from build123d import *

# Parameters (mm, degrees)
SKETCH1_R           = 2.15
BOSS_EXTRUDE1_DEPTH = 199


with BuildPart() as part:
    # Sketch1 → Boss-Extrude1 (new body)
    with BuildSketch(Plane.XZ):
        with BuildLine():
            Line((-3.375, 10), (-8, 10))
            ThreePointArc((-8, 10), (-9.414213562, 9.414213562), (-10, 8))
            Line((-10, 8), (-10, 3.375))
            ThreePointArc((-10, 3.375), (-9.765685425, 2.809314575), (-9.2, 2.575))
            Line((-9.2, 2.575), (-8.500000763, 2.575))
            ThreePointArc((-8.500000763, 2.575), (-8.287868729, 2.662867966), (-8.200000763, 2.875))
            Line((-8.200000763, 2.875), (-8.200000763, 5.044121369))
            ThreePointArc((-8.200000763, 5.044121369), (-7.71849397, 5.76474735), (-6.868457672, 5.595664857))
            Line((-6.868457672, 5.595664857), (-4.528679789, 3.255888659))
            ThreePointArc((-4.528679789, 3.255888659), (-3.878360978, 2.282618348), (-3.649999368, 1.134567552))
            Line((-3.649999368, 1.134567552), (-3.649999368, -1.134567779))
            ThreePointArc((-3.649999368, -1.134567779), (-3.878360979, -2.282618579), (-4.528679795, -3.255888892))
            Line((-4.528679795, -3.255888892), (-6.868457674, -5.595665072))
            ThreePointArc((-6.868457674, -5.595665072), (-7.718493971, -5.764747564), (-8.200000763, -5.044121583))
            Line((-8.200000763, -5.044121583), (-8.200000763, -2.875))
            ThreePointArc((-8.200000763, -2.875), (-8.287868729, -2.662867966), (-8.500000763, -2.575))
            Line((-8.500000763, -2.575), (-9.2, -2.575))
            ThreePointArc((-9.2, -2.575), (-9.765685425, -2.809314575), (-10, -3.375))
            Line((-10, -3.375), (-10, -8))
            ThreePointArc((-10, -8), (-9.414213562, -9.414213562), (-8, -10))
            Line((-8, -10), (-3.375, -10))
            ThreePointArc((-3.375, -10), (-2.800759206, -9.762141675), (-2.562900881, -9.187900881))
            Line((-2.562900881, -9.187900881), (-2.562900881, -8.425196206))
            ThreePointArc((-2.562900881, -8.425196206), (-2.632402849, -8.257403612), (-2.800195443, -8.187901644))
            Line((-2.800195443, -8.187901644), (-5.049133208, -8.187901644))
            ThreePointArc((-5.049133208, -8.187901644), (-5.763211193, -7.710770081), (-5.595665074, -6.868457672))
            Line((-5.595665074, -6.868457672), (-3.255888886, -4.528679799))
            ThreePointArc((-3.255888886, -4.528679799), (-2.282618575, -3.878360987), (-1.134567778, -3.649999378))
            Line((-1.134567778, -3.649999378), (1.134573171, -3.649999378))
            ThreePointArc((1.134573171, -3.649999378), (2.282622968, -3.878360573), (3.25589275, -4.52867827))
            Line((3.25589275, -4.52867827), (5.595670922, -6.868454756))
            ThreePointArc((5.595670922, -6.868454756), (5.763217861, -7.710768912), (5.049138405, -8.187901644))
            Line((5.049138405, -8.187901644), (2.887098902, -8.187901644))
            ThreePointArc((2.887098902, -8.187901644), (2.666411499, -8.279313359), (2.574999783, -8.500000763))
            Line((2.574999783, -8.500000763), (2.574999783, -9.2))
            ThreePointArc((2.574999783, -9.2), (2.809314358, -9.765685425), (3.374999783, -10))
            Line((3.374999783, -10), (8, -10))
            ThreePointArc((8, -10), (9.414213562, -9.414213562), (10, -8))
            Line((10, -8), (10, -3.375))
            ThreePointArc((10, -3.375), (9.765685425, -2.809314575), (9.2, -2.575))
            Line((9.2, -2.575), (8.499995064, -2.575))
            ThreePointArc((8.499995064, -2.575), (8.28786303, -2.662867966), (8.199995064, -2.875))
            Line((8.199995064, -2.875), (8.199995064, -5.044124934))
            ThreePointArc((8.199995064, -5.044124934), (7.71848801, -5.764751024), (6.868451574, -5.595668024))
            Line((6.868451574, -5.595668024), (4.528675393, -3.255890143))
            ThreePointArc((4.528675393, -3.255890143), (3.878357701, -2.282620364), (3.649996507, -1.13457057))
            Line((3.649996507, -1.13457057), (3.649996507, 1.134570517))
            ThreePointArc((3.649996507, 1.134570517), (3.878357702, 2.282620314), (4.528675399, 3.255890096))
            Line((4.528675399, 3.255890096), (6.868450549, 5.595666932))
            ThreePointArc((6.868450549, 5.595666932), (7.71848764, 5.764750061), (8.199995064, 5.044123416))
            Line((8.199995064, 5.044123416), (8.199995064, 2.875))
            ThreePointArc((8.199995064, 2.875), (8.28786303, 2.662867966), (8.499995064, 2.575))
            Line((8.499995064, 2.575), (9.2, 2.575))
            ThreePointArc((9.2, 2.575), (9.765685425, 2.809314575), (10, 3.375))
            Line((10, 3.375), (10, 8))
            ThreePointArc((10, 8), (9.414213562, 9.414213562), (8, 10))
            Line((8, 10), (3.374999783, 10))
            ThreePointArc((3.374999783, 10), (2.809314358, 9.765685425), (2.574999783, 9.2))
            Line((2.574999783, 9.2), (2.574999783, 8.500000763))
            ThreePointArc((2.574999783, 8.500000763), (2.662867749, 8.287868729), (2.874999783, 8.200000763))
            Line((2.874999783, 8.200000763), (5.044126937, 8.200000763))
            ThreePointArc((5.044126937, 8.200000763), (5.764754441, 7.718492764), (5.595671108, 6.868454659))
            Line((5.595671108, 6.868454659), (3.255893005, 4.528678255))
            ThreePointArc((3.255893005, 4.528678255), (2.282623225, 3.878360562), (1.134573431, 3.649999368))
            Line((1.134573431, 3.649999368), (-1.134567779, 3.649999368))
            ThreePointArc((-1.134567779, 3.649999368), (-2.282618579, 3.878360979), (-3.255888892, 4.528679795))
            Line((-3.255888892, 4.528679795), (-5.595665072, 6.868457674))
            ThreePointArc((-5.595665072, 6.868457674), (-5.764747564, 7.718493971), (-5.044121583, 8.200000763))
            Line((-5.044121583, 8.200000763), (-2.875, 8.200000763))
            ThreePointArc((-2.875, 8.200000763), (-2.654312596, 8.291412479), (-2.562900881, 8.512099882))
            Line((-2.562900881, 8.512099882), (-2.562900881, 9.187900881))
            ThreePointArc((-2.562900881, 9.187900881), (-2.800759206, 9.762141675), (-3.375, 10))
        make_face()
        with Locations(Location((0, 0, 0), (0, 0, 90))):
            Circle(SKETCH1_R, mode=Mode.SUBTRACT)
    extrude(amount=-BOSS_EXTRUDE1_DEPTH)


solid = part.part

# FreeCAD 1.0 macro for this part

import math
import FreeCAD as App
import Part
import Sketcher

doc = App.newDocument("Part")
body = doc.addObject("PartDesign::Body", "Body")

# Sketch on XZ plane
sketch1 = doc.addObject("Sketcher::SketchObject", "Sketch")
body.addObject(sketch1)
sketch1.AttachmentSupport = (doc.XZ_Plane, [""])
sketch1.MapMode = "FlatFace"
sketch1.addGeometry([
    Part.LineSegment(App.Vector(-3.38, 10, 0), App.Vector(-8, 10, 0)),  # 0
    Part.ArcOfCircle(Part.Circle(App.Vector(-8, 8, 0), App.Vector(0, 0, 1), 2), math.radians(90), math.radians(180)),  # 1
    Part.LineSegment(App.Vector(-10, 8, 0), App.Vector(-10, 3.38, 0)),  # 2
    Part.ArcOfCircle(Part.Circle(App.Vector(-9.2, 3.38, 0), App.Vector(0, 0, 1), 0.8), math.radians(180), math.radians(270)),  # 3
    Part.LineSegment(App.Vector(-9.2, 2.58, 0), App.Vector(-8.5, 2.58, 0)),  # 4
    Part.ArcOfCircle(Part.Circle(App.Vector(-8.5, 2.88, 0), App.Vector(0, 0, 1), 0.3), math.radians(-90), math.radians(0)),  # 5
    Part.LineSegment(App.Vector(-8.2, 2.88, 0), App.Vector(-8.2, 5.04, 0)),  # 6
    Part.ArcOfCircle(Part.Circle(App.Vector(-7.42, 5.04, 0), App.Vector(0, 0, 1), 0.78), math.radians(45), math.radians(180)),  # 7
    Part.LineSegment(App.Vector(-6.87, 5.6, 0), App.Vector(-4.53, 3.26, 0)),  # 8
    Part.ArcOfCircle(Part.Circle(App.Vector(-6.65, 1.13, 0), App.Vector(0, 0, 1), 3), math.radians(0), math.radians(45)),  # 9
    Part.LineSegment(App.Vector(-3.65, 1.13, 0), App.Vector(-3.65, -1.13, 0)),  # 10
    Part.ArcOfCircle(Part.Circle(App.Vector(-6.65, -1.13, 0), App.Vector(0, 0, 1), 3), math.radians(-45), math.radians(0)),  # 11
    Part.LineSegment(App.Vector(-4.53, -3.26, 0), App.Vector(-6.87, -5.6, 0)),  # 12
    Part.ArcOfCircle(Part.Circle(App.Vector(-7.42, -5.04, 0), App.Vector(0, 0, 1), 0.78), math.radians(180), math.radians(315)),  # 13
    Part.LineSegment(App.Vector(-8.2, -5.04, 0), App.Vector(-8.2, -2.88, 0)),  # 14
    Part.ArcOfCircle(Part.Circle(App.Vector(-8.5, -2.88, 0), App.Vector(0, 0, 1), 0.3), math.radians(0), math.radians(90)),  # 15
    Part.LineSegment(App.Vector(-8.5, -2.58, 0), App.Vector(-9.2, -2.58, 0)),  # 16
    Part.ArcOfCircle(Part.Circle(App.Vector(-9.2, -3.38, 0), App.Vector(0, 0, 1), 0.8), math.radians(90), math.radians(180)),  # 17
    Part.LineSegment(App.Vector(-10, -3.38, 0), App.Vector(-10, -8, 0)),  # 18
    Part.ArcOfCircle(Part.Circle(App.Vector(-8, -8, 0), App.Vector(0, 0, 1), 2), math.radians(-180), math.radians(-90)),  # 19
    Part.LineSegment(App.Vector(-8, -10, 0), App.Vector(-3.38, -10, 0)),  # 20
    Part.ArcOfCircle(Part.Circle(App.Vector(-3.38, -9.19, 0), App.Vector(0, 0, 1), 0.81), math.radians(-90), math.radians(0)),  # 21
    Part.LineSegment(App.Vector(-2.56, -9.19, 0), App.Vector(-2.56, -8.43, 0)),  # 22
    Part.ArcOfCircle(Part.Circle(App.Vector(-2.8, -8.43, 0), App.Vector(0, 0, 1), 0.24), math.radians(0), math.radians(90)),  # 23
    Part.LineSegment(App.Vector(-2.8, -8.19, 0), App.Vector(-5.05, -8.19, 0)),  # 24
    Part.ArcOfCircle(Part.Circle(App.Vector(-5.05, -7.41, 0), App.Vector(0, 0, 1), 0.77), math.radians(135), math.radians(270)),  # 25
    Part.LineSegment(App.Vector(-5.6, -6.87, 0), App.Vector(-3.26, -4.53, 0)),  # 26
    Part.ArcOfCircle(Part.Circle(App.Vector(-1.13, -6.65, 0), App.Vector(0, 0, 1), 3), math.radians(90), math.radians(135)),  # 27
    Part.LineSegment(App.Vector(-1.13, -3.65, 0), App.Vector(1.13, -3.65, 0)),  # 28
    Part.ArcOfCircle(Part.Circle(App.Vector(1.13, -6.65, 0), App.Vector(0, 0, 1), 3), math.radians(45), math.radians(90)),  # 29
    Part.LineSegment(App.Vector(3.26, -4.53, 0), App.Vector(5.6, -6.87, 0)),  # 30
    Part.ArcOfCircle(Part.Circle(App.Vector(5.05, -7.41, 0), App.Vector(0, 0, 1), 0.77), math.radians(-90), math.radians(45)),  # 31
    Part.LineSegment(App.Vector(5.05, -8.19, 0), App.Vector(2.89, -8.19, 0)),  # 32
    Part.ArcOfCircle(Part.Circle(App.Vector(2.89, -8.5, 0), App.Vector(0, 0, 1), 0.31), math.radians(90), math.radians(180)),  # 33
    Part.LineSegment(App.Vector(2.57, -8.5, 0), App.Vector(2.57, -9.2, 0)),  # 34
    Part.ArcOfCircle(Part.Circle(App.Vector(3.37, -9.2, 0), App.Vector(0, 0, 1), 0.8), math.radians(180), math.radians(270)),  # 35
    Part.LineSegment(App.Vector(3.37, -10, 0), App.Vector(8, -10, 0)),  # 36
    Part.ArcOfCircle(Part.Circle(App.Vector(8, -8, 0), App.Vector(0, 0, 1), 2), math.radians(-90), math.radians(0)),  # 37
    Part.LineSegment(App.Vector(10, -8, 0), App.Vector(10, -3.38, 0)),  # 38
    Part.ArcOfCircle(Part.Circle(App.Vector(9.2, -3.38, 0), App.Vector(0, 0, 1), 0.8), math.radians(0), math.radians(90)),  # 39
    Part.LineSegment(App.Vector(9.2, -2.58, 0), App.Vector(8.5, -2.58, 0)),  # 40
    Part.ArcOfCircle(Part.Circle(App.Vector(8.5, -2.88, 0), App.Vector(0, 0, 1), 0.3), math.radians(90), math.radians(180)),  # 41
    Part.LineSegment(App.Vector(8.2, -2.88, 0), App.Vector(8.2, -5.04, 0)),  # 42
    Part.ArcOfCircle(Part.Circle(App.Vector(7.42, -5.04, 0), App.Vector(0, 0, 1), 0.78), math.radians(-135), math.radians(0)),  # 43
    Part.LineSegment(App.Vector(6.87, -5.6, 0), App.Vector(4.53, -3.26, 0)),  # 44
    Part.ArcOfCircle(Part.Circle(App.Vector(6.65, -1.13, 0), App.Vector(0, 0, 1), 3), math.radians(180), math.radians(225)),  # 45
    Part.LineSegment(App.Vector(3.65, -1.13, 0), App.Vector(3.65, 1.13, 0)),  # 46
    Part.ArcOfCircle(Part.Circle(App.Vector(6.65, 1.13, 0), App.Vector(0, 0, 1), 3), math.radians(135), math.radians(180)),  # 47
    Part.LineSegment(App.Vector(4.53, 3.26, 0), App.Vector(6.87, 5.6, 0)),  # 48
    Part.ArcOfCircle(Part.Circle(App.Vector(7.42, 5.04, 0), App.Vector(0, 0, 1), 0.78), math.radians(0), math.radians(135)),  # 49
    Part.LineSegment(App.Vector(8.2, 5.04, 0), App.Vector(8.2, 2.88, 0)),  # 50
    Part.ArcOfCircle(Part.Circle(App.Vector(8.5, 2.88, 0), App.Vector(0, 0, 1), 0.3), math.radians(-180), math.radians(-90)),  # 51
    Part.LineSegment(App.Vector(8.5, 2.58, 0), App.Vector(9.2, 2.58, 0)),  # 52
    Part.ArcOfCircle(Part.Circle(App.Vector(9.2, 3.38, 0), App.Vector(0, 0, 1), 0.8), math.radians(-90), math.radians(0)),  # 53
    Part.LineSegment(App.Vector(10, 3.38, 0), App.Vector(10, 8, 0)),  # 54
    Part.ArcOfCircle(Part.Circle(App.Vector(8, 8, 0), App.Vector(0, 0, 1), 2), math.radians(0), math.radians(90)),  # 55
    Part.LineSegment(App.Vector(8, 10, 0), App.Vector(3.37, 10, 0)),  # 56
    Part.ArcOfCircle(Part.Circle(App.Vector(3.37, 9.2, 0), App.Vector(0, 0, 1), 0.8), math.radians(90), math.radians(180)),  # 57
    Part.LineSegment(App.Vector(2.57, 9.2, 0), App.Vector(2.57, 8.5, 0)),  # 58
    Part.ArcOfCircle(Part.Circle(App.Vector(2.87, 8.5, 0), App.Vector(0, 0, 1), 0.3), math.radians(-180), math.radians(-90)),  # 59
    Part.LineSegment(App.Vector(2.87, 8.2, 0), App.Vector(5.04, 8.2, 0)),  # 60
    Part.ArcOfCircle(Part.Circle(App.Vector(5.04, 7.42, 0), App.Vector(0, 0, 1), 0.78), math.radians(-45), math.radians(90)),  # 61
    Part.LineSegment(App.Vector(5.6, 6.87, 0), App.Vector(3.26, 4.53, 0)),  # 62
    Part.ArcOfCircle(Part.Circle(App.Vector(1.13, 6.65, 0), App.Vector(0, 0, 1), 3), math.radians(-90), math.radians(-45)),  # 63
    Part.LineSegment(App.Vector(1.13, 3.65, 0), App.Vector(-1.13, 3.65, 0)),  # 64
    Part.ArcOfCircle(Part.Circle(App.Vector(-1.13, 6.65, 0), App.Vector(0, 0, 1), 3), math.radians(-135), math.radians(-90)),  # 65
    Part.LineSegment(App.Vector(-3.26, 4.53, 0), App.Vector(-5.6, 6.87, 0)),  # 66
    Part.ArcOfCircle(Part.Circle(App.Vector(-5.04, 7.42, 0), App.Vector(0, 0, 1), 0.78), math.radians(90), math.radians(225)),  # 67
    Part.LineSegment(App.Vector(-5.04, 8.2, 0), App.Vector(-2.88, 8.2, 0)),  # 68
    Part.ArcOfCircle(Part.Circle(App.Vector(-2.88, 8.51, 0), App.Vector(0, 0, 1), 0.31), math.radians(-90), math.radians(0)),  # 69
    Part.LineSegment(App.Vector(-2.56, 8.51, 0), App.Vector(-2.56, 9.19, 0)),  # 70
    Part.ArcOfCircle(Part.Circle(App.Vector(-3.38, 9.19, 0), App.Vector(0, 0, 1), 0.81), math.radians(0), math.radians(90)),  # 71
    Part.Circle(App.Vector(0, 0, 0), App.Vector(0, 0, 1), 2.15),  # 72
], False)
sketch1.addConstraint([
    Sketcher.Constraint("Tangent", 0, 2, 1, 1),
    Sketcher.Constraint("Tangent", 1, 2, 2, 1),
    Sketcher.Constraint("Tangent", 2, 2, 3, 1),
    Sketcher.Constraint("Tangent", 3, 2, 4, 1),
    Sketcher.Constraint("Tangent", 4, 2, 5, 1),
    Sketcher.Constraint("Tangent", 5, 2, 6, 1),
    Sketcher.Constraint("Tangent", 6, 2, 7, 2),
    Sketcher.Constraint("Tangent", 7, 1, 8, 1),
    Sketcher.Constraint("Tangent", 8, 2, 9, 2),
    Sketcher.Constraint("Tangent", 9, 1, 10, 1),
    Sketcher.Constraint("Tangent", 10, 2, 11, 2),
    Sketcher.Constraint("Tangent", 11, 1, 12, 1),
    Sketcher.Constraint("Tangent", 12, 2, 13, 2),
    Sketcher.Constraint("Tangent", 13, 1, 14, 1),
    Sketcher.Constraint("Tangent", 14, 2, 15, 1),
    Sketcher.Constraint("Tangent", 15, 2, 16, 1),
    Sketcher.Constraint("Tangent", 16, 2, 17, 1),
    Sketcher.Constraint("Tangent", 17, 2, 18, 1),
    Sketcher.Constraint("Tangent", 18, 2, 19, 1),
    Sketcher.Constraint("Tangent", 19, 2, 20, 1),
    Sketcher.Constraint("Tangent", 20, 2, 21, 1),
    Sketcher.Constraint("Tangent", 21, 2, 22, 1),
    Sketcher.Constraint("Tangent", 22, 2, 23, 1),
    Sketcher.Constraint("Tangent", 23, 2, 24, 1),
    Sketcher.Constraint("Tangent", 24, 2, 25, 2),
    Sketcher.Constraint("Tangent", 25, 1, 26, 1),
    Sketcher.Constraint("Tangent", 26, 2, 27, 2),
    Sketcher.Constraint("Tangent", 27, 1, 28, 1),
    Sketcher.Constraint("Tangent", 28, 2, 29, 2),
    Sketcher.Constraint("Tangent", 29, 1, 30, 1),
    Sketcher.Constraint("Tangent", 30, 2, 31, 2),
    Sketcher.Constraint("Tangent", 31, 1, 32, 1),
    Sketcher.Constraint("Tangent", 32, 2, 33, 1),
    Sketcher.Constraint("Tangent", 33, 2, 34, 1),
    Sketcher.Constraint("Tangent", 34, 2, 35, 1),
    Sketcher.Constraint("Tangent", 35, 2, 36, 1),
    Sketcher.Constraint("Tangent", 36, 2, 37, 1),
    Sketcher.Constraint("Tangent", 37, 2, 38, 1),
    Sketcher.Constraint("Tangent", 38, 2, 39, 1),
    Sketcher.Constraint("Tangent", 39, 2, 40, 1),
    Sketcher.Constraint("Tangent", 40, 2, 41, 1),
    Sketcher.Constraint("Tangent", 41, 2, 42, 1),
    Sketcher.Constraint("Tangent", 42, 2, 43, 2),
    Sketcher.Constraint("Tangent", 43, 1, 44, 1),
    Sketcher.Constraint("Tangent", 44, 2, 45, 2),
    Sketcher.Constraint("Tangent", 45, 1, 46, 1),
    Sketcher.Constraint("Tangent", 46, 2, 47, 2),
    Sketcher.Constraint("Tangent", 47, 1, 48, 1),
    Sketcher.Constraint("Tangent", 48, 2, 49, 2),
    Sketcher.Constraint("Tangent", 49, 1, 50, 1),
    Sketcher.Constraint("Tangent", 50, 2, 51, 1),
    Sketcher.Constraint("Tangent", 51, 2, 52, 1),
    Sketcher.Constraint("Tangent", 52, 2, 53, 1),
    Sketcher.Constraint("Tangent", 53, 2, 54, 1),
    Sketcher.Constraint("Tangent", 54, 2, 55, 1),
    Sketcher.Constraint("Tangent", 55, 2, 56, 1),
    Sketcher.Constraint("Tangent", 56, 2, 57, 1),
    Sketcher.Constraint("Tangent", 57, 2, 58, 1),
    Sketcher.Constraint("Tangent", 58, 2, 59, 1),
    Sketcher.Constraint("Tangent", 59, 2, 60, 1),
    Sketcher.Constraint("Tangent", 60, 2, 61, 2),
    Sketcher.Constraint("Tangent", 61, 1, 62, 1),
    Sketcher.Constraint("Tangent", 62, 2, 63, 2),
    Sketcher.Constraint("Tangent", 63, 1, 64, 1),
    Sketcher.Constraint("Tangent", 64, 2, 65, 2),
    Sketcher.Constraint("Tangent", 65, 1, 66, 1),
    Sketcher.Constraint("Tangent", 66, 2, 67, 2),
    Sketcher.Constraint("Tangent", 67, 1, 68, 1),
    Sketcher.Constraint("Tangent", 68, 2, 69, 1),
    Sketcher.Constraint("Tangent", 69, 2, 70, 1),
    Sketcher.Constraint("Tangent", 70, 2, 71, 1),
    Sketcher.Constraint("Tangent", 71, 2, 0, 1),
    Sketcher.Constraint("Horizontal", 0),
    Sketcher.Constraint("Vertical", 2),
    Sketcher.Constraint("Horizontal", 4),
    Sketcher.Constraint("Vertical", 6),
    Sketcher.Constraint("Vertical", 10),
    Sketcher.Constraint("Vertical", 14),
    Sketcher.Constraint("Horizontal", 16),
    Sketcher.Constraint("Vertical", 18),
    Sketcher.Constraint("Horizontal", 20),
    Sketcher.Constraint("Vertical", 22),
    Sketcher.Constraint("Horizontal", 24),
    Sketcher.Constraint("Horizontal", 28),
    Sketcher.Constraint("Horizontal", 32),
    Sketcher.Constraint("Vertical", 34),
    Sketcher.Constraint("Horizontal", 36),
    Sketcher.Constraint("Vertical", 38),
    Sketcher.Constraint("Horizontal", 40),
    Sketcher.Constraint("Vertical", 42),
    Sketcher.Constraint("Vertical", 46),
    Sketcher.Constraint("Vertical", 50),
    Sketcher.Constraint("Horizontal", 52),
    Sketcher.Constraint("Vertical", 54),
    Sketcher.Constraint("Horizontal", 56),
    Sketcher.Constraint("Vertical", 58),
    Sketcher.Constraint("Horizontal", 60),
    Sketcher.Constraint("Horizontal", 64),
    Sketcher.Constraint("Horizontal", 68),
    Sketcher.Constraint("Vertical", 70),
    Sketcher.Constraint("Coincident", 72, 3, -1, 1),
    Sketcher.Constraint("Equal", 9, 11),
    Sketcher.Constraint("Equal", 7, 13),
    Sketcher.Constraint("Equal", 5, 15),
    Sketcher.Constraint("Equal", 3, 17),
    Sketcher.Constraint("Equal", 1, 19),
    Sketcher.Constraint("Equal", 11, 27),
    Sketcher.Constraint("Equal", 27, 29),
    Sketcher.Constraint("Equal", 25, 31),
    Sketcher.Constraint("Equal", 17, 35),
    Sketcher.Constraint("Equal", 19, 37),
    Sketcher.Constraint("Equal", 35, 39),
    Sketcher.Constraint("Equal", 15, 41),
    Sketcher.Constraint("Equal", 13, 43),
    Sketcher.Constraint("Equal", 29, 45),
    Sketcher.Constraint("Equal", 45, 47),
    Sketcher.Constraint("Equal", 43, 49),
    Sketcher.Constraint("Equal", 41, 51),
    Sketcher.Constraint("Equal", 39, 53),
    Sketcher.Constraint("Equal", 37, 55),
    Sketcher.Constraint("Equal", 53, 57),
    Sketcher.Constraint("Equal", 51, 59),
    Sketcher.Constraint("Equal", 49, 61),
    Sketcher.Constraint("Equal", 47, 63),
    Sketcher.Constraint("Equal", 63, 65),
    Sketcher.Constraint("Equal", 61, 67),
    Sketcher.Constraint("Equal", 33, 69),
    Sketcher.Constraint("Equal", 21, 71),
    Sketcher.Constraint("Symmetric", 1, 3, 37, 3, -1, 1),
    Sketcher.Constraint("Symmetric", 5, 3, 41, 3, -1, 1),
    Sketcher.Constraint("Symmetric", 9, 3, 45, 3, -1, 1),
    Sketcher.Constraint("Symmetric", 13, 3, 49, 3, -1, 1),
    Sketcher.Constraint("Symmetric", 17, 3, 53, 3, -1, 1),
    Sketcher.Constraint("Symmetric", 27, 3, 63, 3, -1, 1),
    Sketcher.Constraint("Symmetric", 20, 2, 56, 2, -1, 1),
    Sketcher.Constraint("Symmetric", 25, 1, 61, 1, -1, 1),
    Sketcher.Constraint("Symmetric", 29, 1, 65, 1, -1, 1),
    Sketcher.Constraint("Symmetric", 25, 3, 31, 3, -2),
    Sketcher.Constraint("Symmetric", 19, 3, 37, 3, -2),
    Sketcher.Constraint("Symmetric", 15, 3, 41, 3, -2),
    Sketcher.Constraint("Symmetric", 12, 2, 43, 1, -2),
    Sketcher.Constraint("Symmetric", 8, 2, 47, 1, -2),
    Sketcher.Constraint("Symmetric", 59, 2, 68, 2, -2),
    Sketcher.Constraint("Symmetric", 33, 2, 58, 2, -1),
    Sketcher.Constraint("Perpendicular", 8, 12),
    Sketcher.Constraint("Parallel", 12, 26),
    Sketcher.Constraint("Perpendicular", 26, 30),
    Sketcher.Constraint("Vertical", 21, 3, 71, 3),
    Sketcher.Constraint("Equal", 56, 2),
    Sketcher.Constraint("Equal", 68, 6),
    Sketcher.Constraint("Equal", 16, 34),
    Sketcher.Constraint("Equal", 64, 46),
    Sketcher.Constraint("Equal", 12, 26),
    Sketcher.Constraint("Radius", 1, 2.0),
    Sketcher.Constraint("Radius", 9, 3.0),
    Sketcher.Constraint("Diameter", 72, 4.3),
    Sketcher.Constraint("Radius", 3, 0.8),
    Sketcher.Constraint("Radius", 5, 0.3),
    Sketcher.Constraint("Radius", 7, 0.78),
    Sketcher.Constraint("DistanceX", 4, 1, 4, 2, 0.699999),
    Sketcher.Constraint("DistanceX", 1, 3, -1, 1, 8.0),
    Sketcher.Constraint("Radius", 21, 0.812099),
    Sketcher.Constraint("DistanceX", 0, 2, 0, 1, 4.625),
    Sketcher.Constraint("DistanceX", 9, 3, -1, 1, 6.649999),
    Sketcher.Constraint("Radius", 23, 0.237295),
    Sketcher.Constraint("DistanceX", 28, 1, 28, 2, 2.269141),
])
pad1 = doc.addObject("PartDesign::Pad", "Pad")
body.addObject(pad1)
pad1.Profile = sketch1
pad1.Length = 199
pad1.Reversed = True

doc.recompute()
